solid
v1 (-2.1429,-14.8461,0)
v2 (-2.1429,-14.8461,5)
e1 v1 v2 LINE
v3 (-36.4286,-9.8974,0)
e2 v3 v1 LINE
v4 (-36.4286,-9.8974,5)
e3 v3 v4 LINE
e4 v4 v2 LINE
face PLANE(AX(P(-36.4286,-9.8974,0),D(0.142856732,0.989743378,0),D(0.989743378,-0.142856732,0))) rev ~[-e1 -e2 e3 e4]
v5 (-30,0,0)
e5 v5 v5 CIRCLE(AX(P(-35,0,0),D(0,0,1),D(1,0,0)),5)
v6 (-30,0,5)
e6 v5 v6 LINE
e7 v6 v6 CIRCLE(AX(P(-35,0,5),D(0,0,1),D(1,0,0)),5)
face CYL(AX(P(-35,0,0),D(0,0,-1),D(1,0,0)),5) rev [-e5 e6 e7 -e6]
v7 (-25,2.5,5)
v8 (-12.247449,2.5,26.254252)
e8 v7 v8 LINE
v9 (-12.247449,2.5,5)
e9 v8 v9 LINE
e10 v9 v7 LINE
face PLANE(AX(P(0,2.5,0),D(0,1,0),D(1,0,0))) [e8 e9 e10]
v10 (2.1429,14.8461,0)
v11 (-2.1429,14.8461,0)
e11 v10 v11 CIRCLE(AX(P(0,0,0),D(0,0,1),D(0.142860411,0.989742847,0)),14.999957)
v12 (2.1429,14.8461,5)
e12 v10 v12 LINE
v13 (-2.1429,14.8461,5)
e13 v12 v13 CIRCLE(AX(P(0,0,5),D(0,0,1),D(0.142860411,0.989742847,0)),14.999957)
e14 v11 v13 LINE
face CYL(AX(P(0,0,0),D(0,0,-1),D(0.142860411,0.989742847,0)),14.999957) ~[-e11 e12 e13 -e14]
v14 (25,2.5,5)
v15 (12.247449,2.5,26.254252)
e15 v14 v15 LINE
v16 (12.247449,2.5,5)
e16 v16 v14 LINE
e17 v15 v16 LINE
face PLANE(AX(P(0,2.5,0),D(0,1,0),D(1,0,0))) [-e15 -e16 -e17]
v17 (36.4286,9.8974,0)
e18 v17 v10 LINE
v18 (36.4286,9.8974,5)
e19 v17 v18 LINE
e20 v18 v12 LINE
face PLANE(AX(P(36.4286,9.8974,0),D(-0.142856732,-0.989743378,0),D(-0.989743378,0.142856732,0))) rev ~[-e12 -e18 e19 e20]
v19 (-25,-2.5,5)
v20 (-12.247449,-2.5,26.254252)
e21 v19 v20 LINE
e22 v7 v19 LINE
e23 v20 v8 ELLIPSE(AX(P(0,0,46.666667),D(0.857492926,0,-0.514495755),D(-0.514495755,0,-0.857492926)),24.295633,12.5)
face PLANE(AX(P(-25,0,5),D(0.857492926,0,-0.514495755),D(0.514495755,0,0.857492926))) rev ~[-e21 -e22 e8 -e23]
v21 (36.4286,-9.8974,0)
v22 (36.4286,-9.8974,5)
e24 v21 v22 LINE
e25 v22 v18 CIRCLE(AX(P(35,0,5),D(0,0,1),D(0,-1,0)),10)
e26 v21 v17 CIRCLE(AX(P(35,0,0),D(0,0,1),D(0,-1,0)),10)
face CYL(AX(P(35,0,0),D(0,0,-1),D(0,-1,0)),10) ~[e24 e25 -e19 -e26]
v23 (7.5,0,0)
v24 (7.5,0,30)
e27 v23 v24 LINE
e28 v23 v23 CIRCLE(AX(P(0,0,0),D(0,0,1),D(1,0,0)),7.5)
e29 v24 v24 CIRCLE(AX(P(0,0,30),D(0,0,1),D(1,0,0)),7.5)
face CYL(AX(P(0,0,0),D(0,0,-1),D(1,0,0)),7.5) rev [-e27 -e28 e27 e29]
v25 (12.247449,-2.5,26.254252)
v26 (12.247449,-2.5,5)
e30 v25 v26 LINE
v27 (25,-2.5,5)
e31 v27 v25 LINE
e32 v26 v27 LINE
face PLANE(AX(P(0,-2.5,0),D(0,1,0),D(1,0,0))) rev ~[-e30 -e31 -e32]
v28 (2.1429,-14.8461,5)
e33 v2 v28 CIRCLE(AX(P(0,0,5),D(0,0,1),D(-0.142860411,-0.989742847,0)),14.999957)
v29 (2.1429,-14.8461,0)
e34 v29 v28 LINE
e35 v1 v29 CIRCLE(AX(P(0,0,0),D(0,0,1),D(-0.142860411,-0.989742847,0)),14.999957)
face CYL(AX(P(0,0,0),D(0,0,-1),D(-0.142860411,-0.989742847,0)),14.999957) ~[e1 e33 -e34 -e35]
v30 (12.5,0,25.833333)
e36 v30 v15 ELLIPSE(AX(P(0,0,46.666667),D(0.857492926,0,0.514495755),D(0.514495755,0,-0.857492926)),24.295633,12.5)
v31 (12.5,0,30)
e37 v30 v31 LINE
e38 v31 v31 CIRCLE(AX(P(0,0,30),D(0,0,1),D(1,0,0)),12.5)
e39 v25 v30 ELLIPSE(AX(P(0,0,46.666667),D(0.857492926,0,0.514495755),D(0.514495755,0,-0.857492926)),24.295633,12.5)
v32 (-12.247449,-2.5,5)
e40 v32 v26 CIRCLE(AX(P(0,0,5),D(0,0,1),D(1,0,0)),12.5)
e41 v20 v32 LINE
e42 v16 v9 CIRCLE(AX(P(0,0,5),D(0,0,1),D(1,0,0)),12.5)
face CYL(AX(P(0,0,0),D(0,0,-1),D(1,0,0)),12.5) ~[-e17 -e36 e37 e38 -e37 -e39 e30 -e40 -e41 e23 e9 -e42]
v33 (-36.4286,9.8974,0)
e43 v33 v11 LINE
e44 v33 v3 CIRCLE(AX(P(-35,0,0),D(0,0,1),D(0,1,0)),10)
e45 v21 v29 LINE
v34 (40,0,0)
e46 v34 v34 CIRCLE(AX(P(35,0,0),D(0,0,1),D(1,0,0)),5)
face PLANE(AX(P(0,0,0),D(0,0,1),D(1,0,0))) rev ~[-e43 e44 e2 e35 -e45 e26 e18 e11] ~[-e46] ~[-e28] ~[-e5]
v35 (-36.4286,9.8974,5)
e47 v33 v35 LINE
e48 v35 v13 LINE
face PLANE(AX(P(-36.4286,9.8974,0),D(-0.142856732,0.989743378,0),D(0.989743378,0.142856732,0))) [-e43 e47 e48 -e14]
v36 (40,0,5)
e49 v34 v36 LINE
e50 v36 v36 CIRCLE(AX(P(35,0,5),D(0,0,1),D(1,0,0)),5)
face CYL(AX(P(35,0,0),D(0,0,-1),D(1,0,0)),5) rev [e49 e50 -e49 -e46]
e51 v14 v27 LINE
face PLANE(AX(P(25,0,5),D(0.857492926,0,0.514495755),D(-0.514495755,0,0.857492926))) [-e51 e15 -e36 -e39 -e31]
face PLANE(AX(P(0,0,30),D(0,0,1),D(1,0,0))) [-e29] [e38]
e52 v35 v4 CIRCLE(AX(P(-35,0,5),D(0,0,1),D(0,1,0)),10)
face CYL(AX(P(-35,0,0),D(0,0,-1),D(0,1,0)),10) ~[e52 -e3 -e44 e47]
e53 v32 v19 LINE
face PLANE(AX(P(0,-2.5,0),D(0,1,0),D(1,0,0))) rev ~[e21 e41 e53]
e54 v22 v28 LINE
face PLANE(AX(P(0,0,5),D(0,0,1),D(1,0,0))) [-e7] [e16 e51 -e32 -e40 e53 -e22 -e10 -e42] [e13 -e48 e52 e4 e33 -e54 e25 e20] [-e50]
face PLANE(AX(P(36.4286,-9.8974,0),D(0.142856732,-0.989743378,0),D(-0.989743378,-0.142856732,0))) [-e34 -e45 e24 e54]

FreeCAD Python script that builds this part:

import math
import FreeCAD as App
import Part
import Sketcher
Q = App.Units.Quantity

doc = App.newDocument("Part")
body = doc.addObject("PartDesign::Body", "Body")

sketch1 = doc.addObject("Sketcher::SketchObject", "Sketch")
body.addObject(sketch1)
sketch1.AttachmentSupport = (doc.XY_Plane, [""])
sketch1.MapMode = "FlatFace"
sketch1.addGeometry([
    Part.ArcOfCircle(Part.Circle(App.Vector(-35, 0, 0), App.Vector(0, 0, 1), 10), math.radians(98), math.radians(262)),
    Part.LineSegment(App.Vector(-36.4, -9.9, 0), App.Vector(-2.1, -14.8, 0)),
    Part.ArcOfCircle(Part.Circle(App.Vector(0, 0, 0), App.Vector(0, 0, 1), 15), math.radians(-98.21), math.radians(-81.79)),
    Part.LineSegment(App.Vector(2.1, -14.8, 0), App.Vector(36.4, -9.9, 0)),
    Part.ArcOfCircle(Part.Circle(App.Vector(35, 0, 0), App.Vector(0, 0, 1), 10), math.radians(-82), math.radians(82)),
    Part.LineSegment(App.Vector(36.4, 9.9, 0), App.Vector(2.1, 14.8, 0)),
    Part.ArcOfCircle(Part.Circle(App.Vector(0, 0, 0), App.Vector(0, 0, 1), 15), math.radians(81.79), math.radians(98.21)),
    Part.LineSegment(App.Vector(-2.1, 14.8, 0), App.Vector(-36.4, 9.9, 0)),
    Part.Circle(App.Vector(-35, 0, 0), App.Vector(0, 0, 1), 5),
    Part.Circle(App.Vector(0, 0, 0), App.Vector(0, 0, 1), 12.5),
    Part.Circle(App.Vector(35, 0, 0), App.Vector(0, 0, 1), 5),
], False)
sketch1.addConstraint([
    Sketcher.Constraint("Tangent", 0, 2, 1, 1),
    Sketcher.Constraint("Tangent", 1, 2, 2, 1),
    Sketcher.Constraint("Tangent", 2, 2, 3, 1),
    Sketcher.Constraint("Tangent", 3, 2, 4, 1),
    Sketcher.Constraint("Tangent", 4, 2, 5, 1),
    Sketcher.Constraint("Tangent", 5, 2, 6, 1),
    Sketcher.Constraint("Tangent", 6, 2, 7, 1),
    Sketcher.Constraint("Tangent", 7, 2, 0, 1),
    Sketcher.Constraint("Coincident", 2, 3, -1, 1),
    Sketcher.Constraint("Coincident", 6, 3, -1, 1),
    Sketcher.Constraint("Coincident", 9, 3, -1, 1),
    Sketcher.Constraint("Coincident", 8, 3, 0, 3),
    Sketcher.Constraint("Coincident", 10, 3, 4, 3),
    Sketcher.Constraint("Equal", 0, 4),
    Sketcher.Constraint("Equal", 2, 6),
    Sketcher.Constraint("Equal", 8, 10),
    Sketcher.Constraint("Symmetric", 0, 3, 4, 3, -1, 1),
    Sketcher.Constraint("PointOnObject", 0, 3, -1),
    Sketcher.Constraint("Diameter", 8, Q("10 mm")),
    Sketcher.Constraint("Diameter", 9, Q("25 mm")),
    Sketcher.Constraint("Radius", 0, Q("10 mm")),
    Sketcher.Constraint("Radius", 2, Q("15 mm")),
    Sketcher.Constraint("DistanceX", 0, 3, -1, 1, Q("35 mm")),
])
pad1 = doc.addObject("PartDesign::Pad", "Pad")
body.addObject(pad1)
pad1.Profile = sketch1
pad1.Length = 5

sketch2 = doc.addObject("Sketcher::SketchObject", "Sketch001")
body.addObject(sketch2)
sketch2.AttachmentSupport = (doc.XY_Plane, [""])
sketch2.MapMode = "FlatFace"
sketch2.addGeometry([
    Part.Circle(App.Vector(0, 0, 0), App.Vector(0, 0, 1), 12),
    Part.Circle(App.Vector(0, 0, 0), App.Vector(0, 0, 1), 8),
], False)
sketch2.addConstraint([
    Sketcher.Constraint("Coincident", 0, 3, -1, 1),
    Sketcher.Constraint("Coincident", 1, 3, -1, 1),
    Sketcher.Constraint("Diameter", 0, Q("25 mm")),
    Sketcher.Constraint("Diameter", 1, Q("15 mm")),
])
pad2 = doc.addObject("PartDesign::Pad", "Pad001")
body.addObject(pad2)
pad2.Profile = sketch2
pad2.Length = 30

sketch3 = doc.addObject("Sketcher::SketchObject", "Sketch002")
body.addObject(sketch3)
sketch3.AttachmentSupport = (doc.XZ_Plane, [""])
sketch3.MapMode = "FlatFace"
sketch3.addGeometry([
    Part.LineSegment(App.Vector(-10, 30, 0), App.Vector(-10, 5, 0)),
    Part.LineSegment(App.Vector(-10, 5, 0), App.Vector(-25, 5, 0)),
    Part.LineSegment(App.Vector(-25, 5, 0), App.Vector(-10, 30, 0)),
    Part.LineSegment(App.Vector(25, 5, 0), App.Vector(10, 5, 0)),
    Part.LineSegment(App.Vector(10, 5, 0), App.Vector(10, 30, 0)),
    Part.LineSegment(App.Vector(10, 30, 0), App.Vector(25, 5, 0)),
], False)
sketch3.addConstraint([
    Sketcher.Constraint("Coincident", 0, 2, 1, 1),
    Sketcher.Constraint("Coincident", 1, 2, 2, 1),
    Sketcher.Constraint("Coincident", 2, 2, 0, 1),
    Sketcher.Constraint("Coincident", 3, 2, 4, 1),
    Sketcher.Constraint("Coincident", 4, 2, 5, 1),
    Sketcher.Constraint("Coincident", 5, 2, 3, 1),
    Sketcher.Constraint("Vertical", 0),
    Sketcher.Constraint("Horizontal", 1),
    Sketcher.Constraint("Horizontal", 3),
    Sketcher.Constraint("Vertical", 4),
    Sketcher.Constraint("Symmetric", 0, 2, 3, 2, -2),
    Sketcher.Constraint("Horizontal", 2, 2, 4, 2),
    Sketcher.Constraint("Equal", 1, 3),
    Sketcher.Constraint("DistanceX", 1, 2, 1, 1, Q("15 mm")),
    Sketcher.Constraint("DistanceY", 0, 2, 0, 1, Q("25 mm")),
    Sketcher.Constraint("DistanceX", 0, 2, -1, 1, Q("10 mm")),
    Sketcher.Constraint("DistanceY", -1, 1, 0, 2, Q("5 mm")),
])
pad3 = doc.addObject("PartDesign::Pad", "Pad002")
body.addObject(pad3)
pad3.Profile = sketch3
pad3.Type = "TwoLengths"
pad3.Length = 2.5
pad3.Length2 = 2.5
pad3.Reversed = True

doc.recompute()
